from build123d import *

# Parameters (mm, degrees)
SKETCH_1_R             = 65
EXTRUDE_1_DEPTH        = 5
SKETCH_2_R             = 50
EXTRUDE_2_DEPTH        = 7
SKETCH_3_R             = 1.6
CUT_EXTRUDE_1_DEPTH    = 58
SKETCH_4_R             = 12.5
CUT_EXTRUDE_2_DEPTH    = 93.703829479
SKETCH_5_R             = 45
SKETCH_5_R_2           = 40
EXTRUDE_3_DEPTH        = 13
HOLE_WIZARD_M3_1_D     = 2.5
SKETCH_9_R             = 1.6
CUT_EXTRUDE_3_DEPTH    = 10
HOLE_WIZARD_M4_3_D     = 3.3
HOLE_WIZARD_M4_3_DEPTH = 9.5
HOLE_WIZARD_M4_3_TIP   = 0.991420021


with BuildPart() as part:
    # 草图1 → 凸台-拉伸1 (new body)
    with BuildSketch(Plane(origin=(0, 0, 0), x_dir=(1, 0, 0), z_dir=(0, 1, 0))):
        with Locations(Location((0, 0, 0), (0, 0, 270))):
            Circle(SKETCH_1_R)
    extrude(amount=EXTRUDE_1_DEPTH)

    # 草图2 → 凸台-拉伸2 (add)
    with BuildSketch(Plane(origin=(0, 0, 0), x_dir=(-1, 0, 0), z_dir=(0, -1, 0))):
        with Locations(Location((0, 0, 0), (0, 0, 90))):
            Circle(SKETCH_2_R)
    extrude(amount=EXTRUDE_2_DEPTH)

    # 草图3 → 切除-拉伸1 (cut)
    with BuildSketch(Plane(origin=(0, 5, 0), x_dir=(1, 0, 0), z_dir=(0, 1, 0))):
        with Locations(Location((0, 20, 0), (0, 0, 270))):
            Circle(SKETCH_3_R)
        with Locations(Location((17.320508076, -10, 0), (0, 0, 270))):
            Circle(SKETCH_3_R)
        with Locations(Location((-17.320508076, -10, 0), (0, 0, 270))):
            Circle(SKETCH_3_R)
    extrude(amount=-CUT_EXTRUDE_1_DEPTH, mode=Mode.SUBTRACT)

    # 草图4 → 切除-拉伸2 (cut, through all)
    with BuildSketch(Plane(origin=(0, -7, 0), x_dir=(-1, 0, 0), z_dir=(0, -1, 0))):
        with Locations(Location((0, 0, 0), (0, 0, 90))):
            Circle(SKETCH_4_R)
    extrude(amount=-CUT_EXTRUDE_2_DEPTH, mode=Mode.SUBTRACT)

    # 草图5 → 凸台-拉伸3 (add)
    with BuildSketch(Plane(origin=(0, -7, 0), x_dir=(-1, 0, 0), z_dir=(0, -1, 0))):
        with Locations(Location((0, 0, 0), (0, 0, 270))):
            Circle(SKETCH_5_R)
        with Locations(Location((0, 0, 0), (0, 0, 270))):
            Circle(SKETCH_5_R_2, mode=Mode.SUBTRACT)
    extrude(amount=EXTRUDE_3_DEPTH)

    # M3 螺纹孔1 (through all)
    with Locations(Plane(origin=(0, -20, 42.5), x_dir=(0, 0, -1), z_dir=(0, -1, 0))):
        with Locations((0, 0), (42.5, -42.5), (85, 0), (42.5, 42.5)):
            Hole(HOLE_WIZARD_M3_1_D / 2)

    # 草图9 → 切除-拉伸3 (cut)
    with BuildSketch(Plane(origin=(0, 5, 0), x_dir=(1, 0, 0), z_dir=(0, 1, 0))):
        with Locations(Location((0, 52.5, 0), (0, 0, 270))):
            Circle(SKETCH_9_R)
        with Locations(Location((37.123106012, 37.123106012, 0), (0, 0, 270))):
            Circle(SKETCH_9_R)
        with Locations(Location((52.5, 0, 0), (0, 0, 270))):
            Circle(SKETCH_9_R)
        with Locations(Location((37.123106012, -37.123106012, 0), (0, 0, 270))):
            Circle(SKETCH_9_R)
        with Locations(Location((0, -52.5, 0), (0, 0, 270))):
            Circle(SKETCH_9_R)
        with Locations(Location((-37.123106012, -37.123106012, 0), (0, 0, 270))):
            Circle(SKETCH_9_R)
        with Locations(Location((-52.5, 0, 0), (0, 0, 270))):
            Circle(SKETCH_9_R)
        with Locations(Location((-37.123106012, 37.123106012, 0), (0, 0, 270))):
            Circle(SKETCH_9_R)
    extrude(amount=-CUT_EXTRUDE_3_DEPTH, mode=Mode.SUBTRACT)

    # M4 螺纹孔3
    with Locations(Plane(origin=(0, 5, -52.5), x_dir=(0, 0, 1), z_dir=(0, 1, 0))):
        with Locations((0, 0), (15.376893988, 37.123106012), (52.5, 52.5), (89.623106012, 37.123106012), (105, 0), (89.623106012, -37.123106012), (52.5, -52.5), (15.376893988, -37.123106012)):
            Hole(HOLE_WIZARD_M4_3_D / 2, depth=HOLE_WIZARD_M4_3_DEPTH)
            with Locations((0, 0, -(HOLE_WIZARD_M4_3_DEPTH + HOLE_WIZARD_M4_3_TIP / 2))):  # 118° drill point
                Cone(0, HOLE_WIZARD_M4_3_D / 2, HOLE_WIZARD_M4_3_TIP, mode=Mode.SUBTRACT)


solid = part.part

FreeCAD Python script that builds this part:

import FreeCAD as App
import Part
import Sketcher
from FreeCAD import Vector
Q = App.Units.Quantity

doc = App.newDocument("Part")
body = doc.addObject("PartDesign::Body", "Body")

# Sketch on XZ plane
sketch1 = doc.addObject("Sketcher::SketchObject", "Sketch")
body.addObject(sketch1)
sketch1.AttachmentSupport = (doc.XZ_Plane, [""])
sketch1.MapMode = "FlatFace"
sketch1.addGeometry(Part.Circle(Vector(0, 0, 0), Vector(0, 0, 1), 65), False)
sketch1.addConstraint([
    Sketcher.Constraint("Coincident", 0, 3, -1, 1),
    Sketcher.Constraint("Diameter", 0, Q("130 mm")),
])
pad1 = doc.addObject("PartDesign::Pad", "Pad")
body.addObject(pad1)
pad1.Profile = sketch1
pad1.Length = 5
pad1.Reversed = True

# Sketch on XZ plane
sketch2 = doc.addObject("Sketcher::SketchObject", "Sketch001")
body.addObject(sketch2)
sketch2.AttachmentSupport = (doc.XZ_Plane, [""])
sketch2.MapMode = "FlatFace"
sketch2.addGeometry(Part.Circle(Vector(0, 0, 0), Vector(0, 0, 1), 50), False)
sketch2.addConstraint([
    Sketcher.Constraint("Coincident", 0, 3, -1, 1),
    Sketcher.Constraint("Diameter", 0, Q("100 mm")),
])
pad2 = doc.addObject("PartDesign::Pad", "Pad001")
body.addObject(pad2)
pad2.Profile = sketch2
pad2.Length = 7

# Sketch on XZ plane
sketch3 = doc.addObject("Sketcher::SketchObject", "Sketch002")
body.addObject(sketch3)
sketch3.AttachmentSupport = (doc.XZ_Plane, [""])
sketch3.MapMode = "FlatFace"
sketch3.AttachmentOffset = App.Placement(Vector(0, 0, -5), App.Rotation())
sketch3.addGeometry([
    Part.Circle(Vector(0, -20, 0), Vector(0, 0, 1), 1.6),
    Part.Circle(Vector(17.3, 10, 0), Vector(0, 0, 1), 1.6),
    Part.Circle(Vector(-17.3, 10, 0), Vector(0, 0, 1), 1.6),
], False)
sketch3.addConstraint([
    Sketcher.Constraint("Equal", 0, 1),
    Sketcher.Constraint("Equal", 1, 2),
    Sketcher.Constraint("Symmetric", 1, 3, 2, 3, -2),
    Sketcher.Constraint("PointOnObject", 0, 3, -2),
    Sketcher.Constraint("Diameter", 0, Q("3.2 mm")),
    Sketcher.Constraint("DistanceY", 0, 3, -1, 1, Q("20 mm")),
    Sketcher.Constraint("DistanceY", -1, 1, 1, 3, Q("10 mm")),
    Sketcher.Constraint("DistanceX", -1, 1, 1, 3, Q("17.320508 mm")),
])
pocket1 = doc.addObject("PartDesign::Pocket", "Pocket")
body.addObject(pocket1)
pocket1.Profile = sketch3
pocket1.Length = 58
pocket1.Reversed = True

# Sketch on XZ plane
sketch4 = doc.addObject("Sketcher::SketchObject", "Sketch003")
body.addObject(sketch4)
sketch4.AttachmentSupport = (doc.XZ_Plane, [""])
sketch4.MapMode = "FlatFace"
sketch4.AttachmentOffset = App.Placement(Vector(0, 0, 7), App.Rotation())
sketch4.addGeometry(Part.Circle(Vector(0, 0, 0), Vector(0, 0, 1), 12), False)
sketch4.addConstraint([
    Sketcher.Constraint("Coincident", 0, 3, -1, 1),
    Sketcher.Constraint("Diameter", 0, Q("25 mm")),
])
pocket2 = doc.addObject("PartDesign::Pocket", "Pocket001")
body.addObject(pocket2)
pocket2.Profile = sketch4
pocket2.Type = "ThroughAll"

# Sketch on XZ plane
sketch5 = doc.addObject("Sketcher::SketchObject", "Sketch004")
body.addObject(sketch5)
sketch5.AttachmentSupport = (doc.XZ_Plane, [""])
sketch5.MapMode = "FlatFace"
sketch5.AttachmentOffset = App.Placement(Vector(0, 0, 7), App.Rotation())
sketch5.addGeometry([
    Part.Circle(Vector(0, 0, 0), Vector(0, 0, 1), 45),
    Part.Circle(Vector(0, 0, 0), Vector(0, 0, 1), 40),
], False)
sketch5.addConstraint([
    Sketcher.Constraint("Coincident", 0, 3, -1, 1),
    Sketcher.Constraint("Coincident", 1, 3, -1, 1),
    Sketcher.Constraint("Diameter", 0, Q("90 mm")),
    Sketcher.Constraint("Diameter", 1, Q("80 mm")),
])
pad3 = doc.addObject("PartDesign::Pad", "Pad002")
body.addObject(pad3)
pad3.Profile = sketch5
pad3.Length = 13

# Sketch on XZ plane
sketch6 = doc.addObject("Sketcher::SketchObject", "Sketch005")
body.addObject(sketch6)
sketch6.AttachmentSupport = (doc.XZ_Plane, [""])
sketch6.MapMode = "FlatFace"
sketch6.AttachmentOffset = App.Placement(Vector(0, 0, 20), App.Rotation())
sketch6.addGeometry([
    Part.Circle(Vector(0, 42.5, 0), Vector(0, 0, 1), 1.2),
    Part.Circle(Vector(-42.5, 0, 0), Vector(0, 0, 1), 1.2),
    Part.Circle(Vector(0, -42.5, 0), Vector(0, 0, 1), 1.2),
    Part.Circle(Vector(42.5, 0, 0), Vector(0, 0, 1), 1.2),
], False)
sketch6.addConstraint([
    Sketcher.Constraint("Equal", 0, 1),
    Sketcher.Constraint("Equal", 1, 2),
    Sketcher.Constraint("Equal", 2, 3),
    Sketcher.Constraint("Symmetric", 0, 3, 2, 3, -1, 1),
    Sketcher.Constraint("Symmetric", 1, 3, 3, 3, -1, 1),
    Sketcher.Constraint("PointOnObject", 0, 3, -2),
    Sketcher.Constraint("PointOnObject", 1, 3, -1),
    Sketcher.Constraint("Diameter", 0, Q("2.5 mm")),
    Sketcher.Constraint("DistanceY", 2, 3, 0, 3, Q("85 mm")),
    Sketcher.Constraint("DistanceX", 1, 3, 3, 3, Q("85 mm")),
])
doc.recompute()
hole = doc.addObject("PartDesign::Hole", "Hole")
body.addObject(hole)
hole.Profile = sketch6
hole.ThreadType = "None"
hole.Diameter = 2.5
hole.DepthType = "ThroughAll"

# Sketch on XZ plane
sketch7 = doc.addObject("Sketcher::SketchObject", "Sketch006")
body.addObject(sketch7)
sketch7.AttachmentSupport = (doc.XZ_Plane, [""])
sketch7.MapMode = "FlatFace"
sketch7.AttachmentOffset = App.Placement(Vector(0, 0, -5), App.Rotation())
sketch7.addGeometry([
    Part.Circle(Vector(0, -52.5, 0), Vector(0, 0, 1), 1.6),  # 0
    Part.Circle(Vector(37.1, -37.1, 0), Vector(0, 0, 1), 1.6),  # 1
    Part.Circle(Vector(52.5, 0, 0), Vector(0, 0, 1), 1.6),  # 2
    Part.Circle(Vector(37.1, 37.1, 0), Vector(0, 0, 1), 1.6),  # 3
    Part.Circle(Vector(0, 52.5, 0), Vector(0, 0, 1), 1.6),  # 4
    Part.Circle(Vector(-37.1, 37.1, 0), Vector(0, 0, 1), 1.6),  # 5
    Part.Circle(Vector(-52.5, 0, 0), Vector(0, 0, 1), 1.6),  # 6
    Part.Circle(Vector(-37.1, -37.1, 0), Vector(0, 0, 1), 1.6),  # 7
], False)
sketch7.addConstraint([
    Sketcher.Constraint("Equal", 0, 1),
    Sketcher.Constraint("Equal", 1, 2),
    Sketcher.Constraint("Equal", 2, 3),
    Sketcher.Constraint("Equal", 3, 4),
    Sketcher.Constraint("Equal", 4, 5),
    Sketcher.Constraint("Equal", 5, 6),
    Sketcher.Constraint("Equal", 6, 7),
    Sketcher.Constraint("Symmetric", 0, 3, 4, 3, -1, 1),
    Sketcher.Constraint("Symmetric", 1, 3, 5, 3, -1, 1),
    Sketcher.Constraint("Symmetric", 2, 3, 6, 3, -1, 1),
    Sketcher.Constraint("Symmetric", 3, 3, 7, 3, -1, 1),
    Sketcher.Constraint("Symmetric", 3, 3, 5, 3, -2),
    Sketcher.Constraint("PointOnObject", 0, 3, -2),
    Sketcher.Constraint("PointOnObject", 2, 3, -1),
    Sketcher.Constraint("Diameter", 0, Q("3.2 mm")),
    Sketcher.Constraint("DistanceY", 0, 3, 4, 3, Q("105 mm")),
    Sketcher.Constraint("DistanceX", -1, 1, 2, 3, Q("52.5 mm")),
    Sketcher.Constraint("DistanceX", -1, 1, 1, 3, Q("37.123106 mm")),
    Sketcher.Constraint("DistanceY", 1, 3, -1, 1, Q("37.123106 mm")),
])
pocket3 = doc.addObject("PartDesign::Pocket", "Pocket002")
body.addObject(pocket3)
pocket3.Profile = sketch7
pocket3.Length = 10
pocket3.Reversed = True

# Sketch on XZ plane
sketch8 = doc.addObject("Sketcher::SketchObject", "Sketch007")
body.addObject(sketch8)
sketch8.AttachmentSupport = (doc.XZ_Plane, [""])
sketch8.MapMode = "FlatFace"
sketch8.AttachmentOffset = App.Placement(Vector(0, 0, -5), App.Rotation())
sketch8.addGeometry([
    Part.Circle(Vector(0, -52.5, 0), Vector(0, 0, 1), 1.6),  # 0
    Part.Circle(Vector(37.1, -37.1, 0), Vector(0, 0, 1), 1.6),  # 1
    Part.Circle(Vector(52.5, 0, 0), Vector(0, 0, 1), 1.6),  # 2
    Part.Circle(Vector(37.1, 37.1, 0), Vector(0, 0, 1), 1.6),  # 3
    Part.Circle(Vector(0, 52.5, 0), Vector(0, 0, 1), 1.6),  # 4
    Part.Circle(Vector(-37.1, 37.1, 0), Vector(0, 0, 1), 1.6),  # 5
    Part.Circle(Vector(-52.5, 0, 0), Vector(0, 0, 1), 1.6),  # 6
    Part.Circle(Vector(-37.1, -37.1, 0), Vector(0, 0, 1), 1.6),  # 7
], False)
sketch8.addConstraint([
    Sketcher.Constraint("Equal", 0, 1),
    Sketcher.Constraint("Equal", 1, 2),
    Sketcher.Constraint("Equal", 2, 3),
    Sketcher.Constraint("Equal", 3, 4),
    Sketcher.Constraint("Equal", 4, 5),
    Sketcher.Constraint("Equal", 5, 6),
    Sketcher.Constraint("Equal", 6, 7),
    Sketcher.Constraint("Symmetric", 0, 3, 4, 3, -1, 1),
    Sketcher.Constraint("Symmetric", 1, 3, 5, 3, -1, 1),
    Sketcher.Constraint("Symmetric", 2, 3, 6, 3, -1, 1),
    Sketcher.Constraint("Symmetric", 3, 3, 7, 3, -1, 1),
    Sketcher.Constraint("Symmetric", 3, 3, 5, 3, -2),
    Sketcher.Constraint("PointOnObject", 0, 3, -2),
    Sketcher.Constraint("PointOnObject", 2, 3, -1),
    Sketcher.Constraint("Diameter", 0, Q("3.3 mm")),
    Sketcher.Constraint("DistanceY", 0, 3, 4, 3, Q("105 mm")),
    Sketcher.Constraint("DistanceX", -1, 1, 2, 3, Q("52.5 mm")),
    Sketcher.Constraint("DistanceX", -1, 1, 1, 3, Q("37.123106 mm")),
    Sketcher.Constraint("DistanceY", 1, 3, -1, 1, Q("37.123106 mm")),
])
doc.recompute()
hole2 = doc.addObject("PartDesign::Hole", "Hole001")
body.addObject(hole2)
hole2.Profile = sketch8
hole2.ThreadType = "None"
hole2.Diameter = 3.3
hole2.DepthType = "Dimension"
hole2.Depth = 9.5
hole2.DrillPoint = "Angled"
hole2.DrillPointAngle = 118
hole2.Reversed = True

doc.recompute()
